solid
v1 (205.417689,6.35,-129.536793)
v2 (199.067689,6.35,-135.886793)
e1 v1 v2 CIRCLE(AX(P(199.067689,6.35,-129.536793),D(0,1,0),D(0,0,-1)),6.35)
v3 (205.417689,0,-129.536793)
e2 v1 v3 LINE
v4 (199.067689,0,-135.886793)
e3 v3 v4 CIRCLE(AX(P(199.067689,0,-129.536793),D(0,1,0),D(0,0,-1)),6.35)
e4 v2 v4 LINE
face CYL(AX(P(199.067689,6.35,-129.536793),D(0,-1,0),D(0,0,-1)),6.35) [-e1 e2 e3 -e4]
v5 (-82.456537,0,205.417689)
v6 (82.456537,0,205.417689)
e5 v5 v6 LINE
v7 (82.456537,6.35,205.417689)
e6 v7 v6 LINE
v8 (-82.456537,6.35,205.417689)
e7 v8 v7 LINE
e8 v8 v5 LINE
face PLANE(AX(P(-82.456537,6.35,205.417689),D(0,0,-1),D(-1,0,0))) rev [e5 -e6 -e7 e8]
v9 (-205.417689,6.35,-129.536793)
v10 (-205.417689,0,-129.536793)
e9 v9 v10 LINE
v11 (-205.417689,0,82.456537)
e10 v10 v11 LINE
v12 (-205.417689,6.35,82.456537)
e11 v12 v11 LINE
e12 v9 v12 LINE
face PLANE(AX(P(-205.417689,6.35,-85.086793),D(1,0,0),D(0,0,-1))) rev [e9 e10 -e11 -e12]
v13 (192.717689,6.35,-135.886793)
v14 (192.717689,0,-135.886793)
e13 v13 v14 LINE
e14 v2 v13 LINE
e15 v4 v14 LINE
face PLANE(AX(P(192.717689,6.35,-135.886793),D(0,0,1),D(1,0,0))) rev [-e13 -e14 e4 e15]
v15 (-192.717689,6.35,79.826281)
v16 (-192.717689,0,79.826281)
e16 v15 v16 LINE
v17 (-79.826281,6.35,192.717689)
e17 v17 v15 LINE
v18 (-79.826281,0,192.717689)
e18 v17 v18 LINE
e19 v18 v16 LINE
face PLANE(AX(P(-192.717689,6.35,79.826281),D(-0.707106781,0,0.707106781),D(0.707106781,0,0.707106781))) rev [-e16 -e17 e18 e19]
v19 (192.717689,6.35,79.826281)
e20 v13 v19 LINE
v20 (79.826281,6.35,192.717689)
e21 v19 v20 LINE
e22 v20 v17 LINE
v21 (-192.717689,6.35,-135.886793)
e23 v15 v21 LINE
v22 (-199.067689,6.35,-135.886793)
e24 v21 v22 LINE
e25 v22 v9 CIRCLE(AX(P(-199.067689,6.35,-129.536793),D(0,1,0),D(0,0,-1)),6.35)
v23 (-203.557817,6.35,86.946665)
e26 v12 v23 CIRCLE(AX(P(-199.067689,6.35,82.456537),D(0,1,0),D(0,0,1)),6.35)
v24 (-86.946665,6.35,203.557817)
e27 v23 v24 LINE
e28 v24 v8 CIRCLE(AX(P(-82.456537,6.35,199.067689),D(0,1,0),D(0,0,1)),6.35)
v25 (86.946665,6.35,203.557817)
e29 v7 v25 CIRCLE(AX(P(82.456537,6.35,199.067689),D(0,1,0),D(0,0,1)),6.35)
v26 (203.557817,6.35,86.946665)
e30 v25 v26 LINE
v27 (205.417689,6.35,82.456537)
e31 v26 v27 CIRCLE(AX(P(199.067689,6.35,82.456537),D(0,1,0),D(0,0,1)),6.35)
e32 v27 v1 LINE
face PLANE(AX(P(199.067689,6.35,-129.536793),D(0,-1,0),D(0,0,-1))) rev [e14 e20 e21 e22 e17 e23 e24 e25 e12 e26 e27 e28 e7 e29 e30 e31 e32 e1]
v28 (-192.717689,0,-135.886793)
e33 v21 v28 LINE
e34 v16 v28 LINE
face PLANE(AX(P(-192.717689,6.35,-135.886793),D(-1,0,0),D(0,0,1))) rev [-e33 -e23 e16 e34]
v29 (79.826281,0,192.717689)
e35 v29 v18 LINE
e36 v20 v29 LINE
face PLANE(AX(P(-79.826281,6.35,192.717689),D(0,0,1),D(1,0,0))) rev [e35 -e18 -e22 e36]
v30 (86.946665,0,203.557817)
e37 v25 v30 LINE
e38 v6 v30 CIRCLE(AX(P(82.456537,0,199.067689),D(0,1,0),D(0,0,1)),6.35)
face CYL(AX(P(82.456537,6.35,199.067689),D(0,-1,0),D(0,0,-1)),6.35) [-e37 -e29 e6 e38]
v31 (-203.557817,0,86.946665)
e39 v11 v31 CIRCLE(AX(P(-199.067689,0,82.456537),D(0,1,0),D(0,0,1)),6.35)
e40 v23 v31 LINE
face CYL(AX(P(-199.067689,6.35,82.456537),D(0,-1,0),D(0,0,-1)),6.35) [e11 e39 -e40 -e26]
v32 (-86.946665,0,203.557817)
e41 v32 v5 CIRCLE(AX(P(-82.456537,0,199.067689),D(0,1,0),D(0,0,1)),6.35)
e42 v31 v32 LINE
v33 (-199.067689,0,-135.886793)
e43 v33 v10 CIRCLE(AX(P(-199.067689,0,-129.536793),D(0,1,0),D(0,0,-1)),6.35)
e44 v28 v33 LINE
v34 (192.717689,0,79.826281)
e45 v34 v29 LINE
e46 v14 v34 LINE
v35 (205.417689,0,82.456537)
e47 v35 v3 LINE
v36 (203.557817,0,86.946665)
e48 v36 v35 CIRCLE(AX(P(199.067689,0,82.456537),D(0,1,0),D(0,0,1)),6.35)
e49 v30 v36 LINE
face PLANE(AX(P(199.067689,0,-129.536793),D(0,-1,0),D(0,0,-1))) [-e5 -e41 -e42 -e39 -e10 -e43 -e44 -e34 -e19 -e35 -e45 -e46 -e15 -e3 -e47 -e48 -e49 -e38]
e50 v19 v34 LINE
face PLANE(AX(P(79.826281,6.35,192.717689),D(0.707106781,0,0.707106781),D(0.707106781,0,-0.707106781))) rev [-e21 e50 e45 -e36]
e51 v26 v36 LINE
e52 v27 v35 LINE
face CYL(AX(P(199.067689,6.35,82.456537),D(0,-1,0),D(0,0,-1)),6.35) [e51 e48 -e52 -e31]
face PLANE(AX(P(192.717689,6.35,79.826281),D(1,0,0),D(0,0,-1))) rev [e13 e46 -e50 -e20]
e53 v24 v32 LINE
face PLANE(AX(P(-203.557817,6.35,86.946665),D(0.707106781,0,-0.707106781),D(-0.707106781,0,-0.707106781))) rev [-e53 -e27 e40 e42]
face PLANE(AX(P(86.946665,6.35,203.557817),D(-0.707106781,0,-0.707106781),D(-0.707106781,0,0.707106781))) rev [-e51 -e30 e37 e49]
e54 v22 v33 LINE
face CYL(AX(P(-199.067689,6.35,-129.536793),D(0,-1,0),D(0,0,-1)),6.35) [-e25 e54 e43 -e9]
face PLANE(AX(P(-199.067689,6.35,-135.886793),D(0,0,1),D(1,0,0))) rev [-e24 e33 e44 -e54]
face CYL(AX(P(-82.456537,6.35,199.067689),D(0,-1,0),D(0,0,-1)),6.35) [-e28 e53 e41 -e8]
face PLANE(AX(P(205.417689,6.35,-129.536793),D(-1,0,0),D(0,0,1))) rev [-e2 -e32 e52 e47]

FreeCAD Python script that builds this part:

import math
import FreeCAD as App
import Part
import Sketcher
from FreeCAD import Vector
Q = App.Units.Quantity

doc = App.newDocument("Part")
body = doc.addObject("PartDesign::Body", "Body")

# Sketch on XZ plane
sketch1 = body.newObject("Sketcher::SketchObject", "Sketch")
sketch1.AttachmentSupport = (doc.getObject("XZ_Plane"), [""])
sketch1.MapMode = "FlatFace"
sketch1.addGeometry([
    Part.LineSegment(Vector(-192.7, 79.8, 0), Vector(-192.7, -135.9, 0)),  # 0
    Part.LineSegment(Vector(-192.7, -135.9, 0), Vector(-199.1, -135.9, 0)),  # 1
    Part.ArcOfCircle(Part.Circle(Vector(-199.1, -129.5, 0), Vector(0, 0, 1), 6.3), math.radians(180), math.radians(270)),  # 2
    Part.LineSegment(Vector(-205.4, -129.5, 0), Vector(-205.4, 82.5, 0)),  # 3
    Part.ArcOfCircle(Part.Circle(Vector(-199.1, 82.5, 0), Vector(0, 0, 1), 6.3), math.radians(135), math.radians(180)),  # 4
    Part.LineSegment(Vector(-203.6, 86.9, 0), Vector(-86.9, 203.6, 0)),  # 5
    Part.ArcOfCircle(Part.Circle(Vector(-82.5, 199.1, 0), Vector(0, 0, 1), 6.3), math.radians(90), math.radians(135)),  # 6
    Part.LineSegment(Vector(-82.5, 205.4, 0), Vector(82.5, 205.4, 0)),  # 7
    Part.ArcOfCircle(Part.Circle(Vector(82.5, 199.1, 0), Vector(0, 0, 1), 6.3), math.radians(45), math.radians(90)),  # 8
    Part.LineSegment(Vector(86.9, 203.6, 0), Vector(203.6, 86.9, 0)),  # 9
    Part.ArcOfCircle(Part.Circle(Vector(199.1, 82.5, 0), Vector(0, 0, 1), 6.3), math.radians(0), math.radians(45)),  # 10
    Part.LineSegment(Vector(205.4, 82.5, 0), Vector(205.4, -129.5, 0)),  # 11
    Part.ArcOfCircle(Part.Circle(Vector(199.1, -129.5, 0), Vector(0, 0, 1), 6.3), math.radians(-90), math.radians(0)),  # 12
    Part.LineSegment(Vector(199.1, -135.9, 0), Vector(192.7, -135.9, 0)),  # 13
    Part.LineSegment(Vector(192.7, -135.9, 0), Vector(192.7, 79.8, 0)),  # 14
    Part.LineSegment(Vector(192.7, 79.8, 0), Vector(79.8, 192.7, 0)),  # 15
    Part.LineSegment(Vector(79.8, 192.7, 0), Vector(-79.8, 192.7, 0)),  # 16
    Part.LineSegment(Vector(-79.8, 192.7, 0), Vector(-192.7, 79.8, 0)),  # 17
], False)
sketch1.addConstraint([
    Sketcher.Constraint("Coincident", 0, 2, 1, 1),
    Sketcher.Constraint("Tangent", 1, 2, 2, 2),
    Sketcher.Constraint("Tangent", 2, 1, 3, 1),
    Sketcher.Constraint("Tangent", 3, 2, 4, 2),
    Sketcher.Constraint("Tangent", 4, 1, 5, 1),
    Sketcher.Constraint("Tangent", 5, 2, 6, 2),
    Sketcher.Constraint("Tangent", 6, 1, 7, 1),
    Sketcher.Constraint("Tangent", 7, 2, 8, 2),
    Sketcher.Constraint("Tangent", 8, 1, 9, 1),
    Sketcher.Constraint("Tangent", 9, 2, 10, 2),
    Sketcher.Constraint("Tangent", 10, 1, 11, 1),
    Sketcher.Constraint("Tangent", 11, 2, 12, 2),
    Sketcher.Constraint("Tangent", 12, 1, 13, 1),
    Sketcher.Constraint("Coincident", 13, 2, 14, 1),
    Sketcher.Constraint("Coincident", 14, 2, 15, 1),
    Sketcher.Constraint("Coincident", 15, 2, 16, 1),
    Sketcher.Constraint("Coincident", 16, 2, 17, 1),
    Sketcher.Constraint("Coincident", 17, 2, 0, 1),
    Sketcher.Constraint("Vertical", 0),
    Sketcher.Constraint("Horizontal", 1),
    Sketcher.Constraint("Vertical", 3),
    Sketcher.Constraint("Horizontal", 7),
    Sketcher.Constraint("Vertical", 11),
    Sketcher.Constraint("Horizontal", 13),
    Sketcher.Constraint("Vertical", 14),
    Sketcher.Constraint("Horizontal", 16),
    Sketcher.Constraint("Equal", 2, 4),
    Sketcher.Constraint("Equal", 4, 6),
    Sketcher.Constraint("Equal", 6, 8),
    Sketcher.Constraint("Equal", 8, 10),
    Sketcher.Constraint("Equal", 10, 12),
    Sketcher.Constraint("Symmetric", 4, 3, 10, 3, -2),
    Sketcher.Constraint("Symmetric", 0, 2, 13, 2, -2),
    Sketcher.Constraint("Perpendicular", 5, 9),
    Sketcher.Constraint("Parallel", 9, 15),
    Sketcher.Constraint("Perpendicular", 15, 17),
    Sketcher.Constraint("Horizontal", 5, 2, 8, 1),
    Sketcher.Constraint("Horizontal", 14, 2, 17, 2),
    Sketcher.Constraint("Radius", 2, Q("0.25 in")),
    Sketcher.Constraint("DistanceX", 1, 2, 1, 1, Q("0.25 in")),
    Sketcher.Constraint("DistanceY", 15, 2, 7, 2, Q("0.5 in")),
    Sketcher.Constraint("DistanceX", 16, 2, 16, 1, Q("159.652561 mm")),
    Sketcher.Constraint("DistanceY", 3, 1, 3, 2, Q("211.99333 mm")),
    Sketcher.Constraint("DistanceX", 5, 2, 8, 3, Q("169.403202 mm")),
    Sketcher.Constraint("Distance", 15, Q("159.652561 mm")),
    Sketcher.Constraint("DistanceY", -1, 1, 6, 3, Q("199.067689 mm")),
])
pad1 = body.newObject("PartDesign::Pad", "Pad")
pad1.Profile = sketch1
pad1.Length = Q("0.25 in")
pad1.Reversed = True

doc.recompute()
